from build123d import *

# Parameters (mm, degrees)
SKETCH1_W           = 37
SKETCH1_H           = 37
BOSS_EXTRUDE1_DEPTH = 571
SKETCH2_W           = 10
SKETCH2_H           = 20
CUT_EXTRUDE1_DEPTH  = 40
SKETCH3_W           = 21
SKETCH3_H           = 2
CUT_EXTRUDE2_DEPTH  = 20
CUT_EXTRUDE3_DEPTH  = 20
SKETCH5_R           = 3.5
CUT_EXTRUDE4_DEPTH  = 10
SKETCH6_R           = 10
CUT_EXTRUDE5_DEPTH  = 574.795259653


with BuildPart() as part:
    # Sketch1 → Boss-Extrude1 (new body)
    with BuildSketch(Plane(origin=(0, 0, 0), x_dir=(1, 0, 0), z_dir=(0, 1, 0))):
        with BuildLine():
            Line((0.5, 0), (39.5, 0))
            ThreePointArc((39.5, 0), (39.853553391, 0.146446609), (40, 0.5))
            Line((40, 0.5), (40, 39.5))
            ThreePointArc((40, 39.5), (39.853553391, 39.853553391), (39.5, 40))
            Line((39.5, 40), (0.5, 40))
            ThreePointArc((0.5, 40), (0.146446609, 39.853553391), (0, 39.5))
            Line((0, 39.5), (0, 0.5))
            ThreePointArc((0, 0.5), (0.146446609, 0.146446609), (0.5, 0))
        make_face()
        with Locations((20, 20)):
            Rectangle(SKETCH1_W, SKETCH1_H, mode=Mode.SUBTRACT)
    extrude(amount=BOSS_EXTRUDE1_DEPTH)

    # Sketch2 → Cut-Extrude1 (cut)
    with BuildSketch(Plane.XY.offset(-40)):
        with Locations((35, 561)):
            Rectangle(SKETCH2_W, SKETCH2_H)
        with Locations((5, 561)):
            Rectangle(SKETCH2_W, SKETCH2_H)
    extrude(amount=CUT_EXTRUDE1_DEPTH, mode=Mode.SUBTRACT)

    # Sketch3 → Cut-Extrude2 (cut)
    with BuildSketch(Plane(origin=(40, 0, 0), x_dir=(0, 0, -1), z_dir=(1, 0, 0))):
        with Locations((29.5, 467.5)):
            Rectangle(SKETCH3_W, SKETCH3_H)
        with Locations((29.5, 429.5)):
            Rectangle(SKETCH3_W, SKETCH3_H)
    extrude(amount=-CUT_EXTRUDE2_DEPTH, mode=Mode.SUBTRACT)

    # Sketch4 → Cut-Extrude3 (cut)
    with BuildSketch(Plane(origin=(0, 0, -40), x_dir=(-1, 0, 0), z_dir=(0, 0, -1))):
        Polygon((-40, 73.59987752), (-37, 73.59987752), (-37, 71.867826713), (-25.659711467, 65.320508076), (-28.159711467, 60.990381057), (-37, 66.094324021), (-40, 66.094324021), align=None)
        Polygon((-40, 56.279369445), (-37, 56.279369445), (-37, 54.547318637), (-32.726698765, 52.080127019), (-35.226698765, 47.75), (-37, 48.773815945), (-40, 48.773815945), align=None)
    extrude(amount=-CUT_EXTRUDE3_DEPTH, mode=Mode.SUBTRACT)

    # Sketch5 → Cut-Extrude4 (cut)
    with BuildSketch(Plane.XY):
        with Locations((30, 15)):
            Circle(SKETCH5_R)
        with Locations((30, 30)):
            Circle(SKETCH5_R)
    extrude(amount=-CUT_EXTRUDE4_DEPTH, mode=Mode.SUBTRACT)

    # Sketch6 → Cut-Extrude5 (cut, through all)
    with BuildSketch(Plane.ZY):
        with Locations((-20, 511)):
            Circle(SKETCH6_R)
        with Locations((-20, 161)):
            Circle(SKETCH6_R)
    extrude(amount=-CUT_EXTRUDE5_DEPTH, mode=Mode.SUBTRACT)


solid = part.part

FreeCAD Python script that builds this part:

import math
import FreeCAD as App
import Part
import Sketcher
Q = App.Units.Quantity

doc = App.newDocument("Part")
body = doc.addObject("PartDesign::Body", "Body")

# Sketch on XZ plane
sketch1 = body.newObject("Sketcher::SketchObject", "Sketch")
sketch1.AttachmentSupport = (doc.getObject("XZ_Plane"), [""])
sketch1.MapMode = "FlatFace"
sketch1.addGeometry([
    Part.LineSegment(App.Vector(0.5, 0, 0), App.Vector(39.5, 0, 0)),  # 0
    Part.ArcOfCircle(Part.Circle(App.Vector(39.5, -0.5, 0), App.Vector(0, 0, 1), 0.5), math.radians(0), math.radians(90)),  # 1
    Part.LineSegment(App.Vector(40, -0.5, 0), App.Vector(40, -39.5, 0)),  # 2
    Part.ArcOfCircle(Part.Circle(App.Vector(39.5, -39.5, 0), App.Vector(0, 0, 1), 0.5), math.radians(-90), math.radians(0)),  # 3
    Part.LineSegment(App.Vector(39.5, -40, 0), App.Vector(0.5, -40, 0)),  # 4
    Part.ArcOfCircle(Part.Circle(App.Vector(0.5, -39.5, 0), App.Vector(0, 0, 1), 0.5), math.radians(180), math.radians(270)),  # 5
    Part.LineSegment(App.Vector(0, -39.5, 0), App.Vector(0, -0.5, 0)),  # 6
    Part.ArcOfCircle(Part.Circle(App.Vector(0.5, -0.5, 0), App.Vector(0, 0, 1), 0.5), math.radians(90), math.radians(180)),  # 7
    Part.LineSegment(App.Vector(38.5, -1.5, 0), App.Vector(1.5, -1.5, 0)),  # 8
    Part.LineSegment(App.Vector(1.5, -1.5, 0), App.Vector(1.5, -38.5, 0)),  # 9
    Part.LineSegment(App.Vector(1.5, -38.5, 0), App.Vector(38.5, -38.5, 0)),  # 10
    Part.LineSegment(App.Vector(38.5, -38.5, 0), App.Vector(38.5, -1.5, 0)),  # 11
], False)
sketch1.addConstraint([
    Sketcher.Constraint("Tangent", 0, 2, 1, 2),
    Sketcher.Constraint("Tangent", 1, 1, 2, 1),
    Sketcher.Constraint("Tangent", 2, 2, 3, 2),
    Sketcher.Constraint("Tangent", 3, 1, 4, 1),
    Sketcher.Constraint("Tangent", 4, 2, 5, 2),
    Sketcher.Constraint("Tangent", 5, 1, 6, 1),
    Sketcher.Constraint("Tangent", 6, 2, 7, 2),
    Sketcher.Constraint("Tangent", 7, 1, 0, 1),
    Sketcher.Constraint("Coincident", 8, 2, 9, 1),
    Sketcher.Constraint("Coincident", 9, 2, 10, 1),
    Sketcher.Constraint("Coincident", 10, 2, 11, 1),
    Sketcher.Constraint("Coincident", 11, 2, 8, 1),
    Sketcher.Constraint("Horizontal", 0),
    Sketcher.Constraint("Vertical", 2),
    Sketcher.Constraint("Horizontal", 4),
    Sketcher.Constraint("Vertical", 6),
    Sketcher.Constraint("Horizontal", 8),
    Sketcher.Constraint("Vertical", 9),
    Sketcher.Constraint("Horizontal", 10),
    Sketcher.Constraint("Vertical", 11),
    Sketcher.Constraint("Equal", 1, 3),
    Sketcher.Constraint("Equal", 3, 5),
    Sketcher.Constraint("Equal", 5, 7),
    Sketcher.Constraint("PointOnObject", 0, 2, -1),
    Sketcher.Constraint("PointOnObject", 5, 1, -2),
    Sketcher.Constraint("Equal", 4, 2),
    Sketcher.Constraint("Equal", 10, 9),
    Sketcher.Constraint("Radius", 1, Q("0.5 mm")),
    Sketcher.Constraint("DistanceX", 0, 1, 0, 2, Q("39 mm")),
    Sketcher.Constraint("DistanceX", 8, 2, 8, 1, Q("37 mm")),
    Sketcher.Constraint("DistanceX", 7, 3, 8, 2, Q("1 mm")),
    Sketcher.Constraint("DistanceY", 8, 2, 7, 3, Q("1 mm")),
])
pad1 = body.newObject("PartDesign::Pad", "Pad")
pad1.Profile = sketch1
pad1.Length = 571
pad1.Reversed = True

# Sketch on XY plane
sketch2 = body.newObject("Sketcher::SketchObject", "Sketch001")
sketch2.AttachmentSupport = (doc.getObject("XY_Plane"), [""])
sketch2.MapMode = "FlatFace"
sketch2.AttachmentOffset = App.Placement(App.Vector(0, 0, -40), App.Rotation())
sketch2.addGeometry([
    Part.LineSegment(App.Vector(30, 571, 0), App.Vector(30, 551, 0)),  # 0
    Part.LineSegment(App.Vector(30, 551, 0), App.Vector(40, 551, 0)),  # 1
    Part.LineSegment(App.Vector(40, 551, 0), App.Vector(40, 571, 0)),  # 2
    Part.LineSegment(App.Vector(40, 571, 0), App.Vector(30, 571, 0)),  # 3
    Part.LineSegment(App.Vector(0, 571, 0), App.Vector(0, 551, 0)),  # 4
    Part.LineSegment(App.Vector(0, 551, 0), App.Vector(10, 551, 0)),  # 5
    Part.LineSegment(App.Vector(10, 551, 0), App.Vector(10, 571, 0)),  # 6
    Part.LineSegment(App.Vector(10, 571, 0), App.Vector(0, 571, 0)),  # 7
], False)
sketch2.addConstraint([
    Sketcher.Constraint("Coincident", 0, 2, 1, 1),
    Sketcher.Constraint("Coincident", 1, 2, 2, 1),
    Sketcher.Constraint("Coincident", 2, 2, 3, 1),
    Sketcher.Constraint("Coincident", 3, 2, 0, 1),
    Sketcher.Constraint("Coincident", 4, 2, 5, 1),
    Sketcher.Constraint("Coincident", 5, 2, 6, 1),
    Sketcher.Constraint("Coincident", 6, 2, 7, 1),
    Sketcher.Constraint("Coincident", 7, 2, 4, 1),
    Sketcher.Constraint("Vertical", 0),
    Sketcher.Constraint("Horizontal", 1),
    Sketcher.Constraint("Vertical", 2),
    Sketcher.Constraint("Horizontal", 3),
    Sketcher.Constraint("Vertical", 4),
    Sketcher.Constraint("Horizontal", 5),
    Sketcher.Constraint("Vertical", 6),
    Sketcher.Constraint("Horizontal", 7),
    Sketcher.Constraint("PointOnObject", 4, 2, -2),
    Sketcher.Constraint("Horizontal", 1, 2, 4, 2),
    Sketcher.Constraint("Horizontal", 3, 2, 6, 2),
    Sketcher.Constraint("Equal", 3, 5),
    Sketcher.Constraint("DistanceX", 1, 1, 1, 2, Q("10 mm")),
    Sketcher.Constraint("DistanceY", 0, 2, 0, 1, Q("20 mm")),
    Sketcher.Constraint("DistanceX", -1, 1, 0, 2, Q("30 mm")),
    Sketcher.Constraint("DistanceY", -1, 1, 0, 2, Q("551 mm")),
])
pocket1 = body.newObject("PartDesign::Pocket", "Pocket")
pocket1.Profile = sketch2
pocket1.Length = 40
pocket1.Reversed = True

# Sketch on YZ plane
sketch3 = body.newObject("Sketcher::SketchObject", "Sketch002")
sketch3.AttachmentSupport = (doc.getObject("YZ_Plane"), [""])
sketch3.MapMode = "FlatFace"
sketch3.AttachmentOffset = App.Placement(App.Vector(0, 0, 40), App.Rotation())
sketch3.addGeometry([
    Part.LineSegment(App.Vector(468.5, -19, 0), App.Vector(466.5, -19, 0)),  # 0
    Part.LineSegment(App.Vector(466.5, -19, 0), App.Vector(466.5, -40, 0)),  # 1
    Part.LineSegment(App.Vector(466.5, -40, 0), App.Vector(468.5, -40, 0)),  # 2
    Part.LineSegment(App.Vector(468.5, -40, 0), App.Vector(468.5, -19, 0)),  # 3
    Part.LineSegment(App.Vector(430.5, -19, 0), App.Vector(428.5, -19, 0)),  # 4
    Part.LineSegment(App.Vector(428.5, -19, 0), App.Vector(428.5, -40, 0)),  # 5
    Part.LineSegment(App.Vector(428.5, -40, 0), App.Vector(430.5, -40, 0)),  # 6
    Part.LineSegment(App.Vector(430.5, -40, 0), App.Vector(430.5, -19, 0)),  # 7
], False)
sketch3.addConstraint([
    Sketcher.Constraint("Coincident", 0, 2, 1, 1),
    Sketcher.Constraint("Coincident", 1, 2, 2, 1),
    Sketcher.Constraint("Coincident", 2, 2, 3, 1),
    Sketcher.Constraint("Coincident", 3, 2, 0, 1),
    Sketcher.Constraint("Coincident", 4, 2, 5, 1),
    Sketcher.Constraint("Coincident", 5, 2, 6, 1),
    Sketcher.Constraint("Coincident", 6, 2, 7, 1),
    Sketcher.Constraint("Coincident", 7, 2, 4, 1),
    Sketcher.Constraint("Horizontal", 0),
    Sketcher.Constraint("Vertical", 1),
    Sketcher.Constraint("Horizontal", 2),
    Sketcher.Constraint("Vertical", 3),
    Sketcher.Constraint("Horizontal", 4),
    Sketcher.Constraint("Vertical", 5),
    Sketcher.Constraint("Horizontal", 6),
    Sketcher.Constraint("Vertical", 7),
    Sketcher.Constraint("Horizontal", 3, 2, 4, 2),
    Sketcher.Constraint("Horizontal", 2, 2, 5, 2),
    Sketcher.Constraint("Equal", 2, 4),
    Sketcher.Constraint("DistanceX", 0, 2, 0, 1, Q("2 mm")),
    Sketcher.Constraint("DistanceY", 1, 2, 1, 1, Q("21 mm")),
    Sketcher.Constraint("DistanceY", 0, 2, -1, 1, Q("19 mm")),
    Sketcher.Constraint("DistanceX", 4, 2, 0, 2, Q("38 mm")),
    Sketcher.Constraint("DistanceX", -1, 1, 0, 2, Q("466.5 mm")),
])
pocket2 = body.newObject("PartDesign::Pocket", "Pocket001")
pocket2.Profile = sketch3
pocket2.Length = 20

# Sketch on XY plane
sketch4 = body.newObject("Sketcher::SketchObject", "Sketch003")
sketch4.AttachmentSupport = (doc.getObject("XY_Plane"), [""])
sketch4.MapMode = "FlatFace"
sketch4.AttachmentOffset = App.Placement(App.Vector(0, 0, -40), App.Rotation())
sketch4.addGeometry([
    Part.LineSegment(App.Vector(37, 73.6, 0), App.Vector(40, 73.6, 0)),  # 0
    Part.LineSegment(App.Vector(40, 73.6, 0), App.Vector(40, 66.1, 0)),  # 1
    Part.LineSegment(App.Vector(40, 66.1, 0), App.Vector(37, 66.1, 0)),  # 2
    Part.LineSegment(App.Vector(37, 66.1, 0), App.Vector(28.2, 61, 0)),  # 3
    Part.LineSegment(App.Vector(28.2, 61, 0), App.Vector(25.7, 65.3, 0)),  # 4
    Part.LineSegment(App.Vector(25.7, 65.3, 0), App.Vector(37, 71.9, 0)),  # 5
    Part.LineSegment(App.Vector(37, 71.9, 0), App.Vector(37, 73.6, 0)),  # 6
    Part.LineSegment(App.Vector(37, 56.3, 0), App.Vector(40, 56.3, 0)),  # 7
    Part.LineSegment(App.Vector(40, 56.3, 0), App.Vector(40, 48.8, 0)),  # 8
    Part.LineSegment(App.Vector(40, 48.8, 0), App.Vector(37, 48.8, 0)),  # 9
    Part.LineSegment(App.Vector(37, 48.8, 0), App.Vector(35.2, 47.8, 0)),  # 10
    Part.LineSegment(App.Vector(35.2, 47.8, 0), App.Vector(32.7, 52.1, 0)),  # 11
    Part.LineSegment(App.Vector(32.7, 52.1, 0), App.Vector(37, 54.5, 0)),  # 12
    Part.LineSegment(App.Vector(37, 54.5, 0), App.Vector(37, 56.3, 0)),  # 13
], False)
sketch4.addConstraint([
    Sketcher.Constraint("Coincident", 0, 2, 1, 1),
    Sketcher.Constraint("Coincident", 1, 2, 2, 1),
    Sketcher.Constraint("Coincident", 2, 2, 3, 1),
    Sketcher.Constraint("Coincident", 3, 2, 4, 1),
    Sketcher.Constraint("Coincident", 4, 2, 5, 1),
    Sketcher.Constraint("Coincident", 5, 2, 6, 1),
    Sketcher.Constraint("Coincident", 6, 2, 0, 1),
    Sketcher.Constraint("Coincident", 7, 2, 8, 1),
    Sketcher.Constraint("Coincident", 8, 2, 9, 1),
    Sketcher.Constraint("Coincident", 9, 2, 10, 1),
    Sketcher.Constraint("Coincident", 10, 2, 11, 1),
    Sketcher.Constraint("Coincident", 11, 2, 12, 1),
    Sketcher.Constraint("Coincident", 12, 2, 13, 1),
    Sketcher.Constraint("Coincident", 13, 2, 7, 1),
    Sketcher.Constraint("Horizontal", 0),
    Sketcher.Constraint("Vertical", 1),
    Sketcher.Constraint("Horizontal", 2),
    Sketcher.Constraint("Vertical", 6),
    Sketcher.Constraint("Horizontal", 7),
    Sketcher.Constraint("Vertical", 8),
    Sketcher.Constraint("Horizontal", 9),
    Sketcher.Constraint("Vertical", 13),
    Sketcher.Constraint("Perpendicular", 3, 4),
    Sketcher.Constraint("Perpendicular", 4, 5),
    Sketcher.Constraint("Parallel", 5, 10),
    Sketcher.Constraint("Perpendicular", 10, 11),
    Sketcher.Constraint("Perpendicular", 11, 12),
    Sketcher.Constraint("Vertical", 2, 2, 5, 2),
    Sketcher.Constraint("Vertical", 1, 2, 7, 2),
    Sketcher.Constraint("Vertical", 6, 2, 9, 2),
    Sketcher.Constraint("Vertical", 9, 2, 12, 2),
    Sketcher.Constraint("Equal", 1, 8),
    Sketcher.Constraint("Equal", 6, 13),
    Sketcher.Constraint("DistanceX", 0, 1, 0, 2, Q("3 mm")),
    Sketcher.Constraint("Angle", 3, Q("-150 deg")),
    Sketcher.Constraint("Distance", 4, Q("5 mm")),
    Sketcher.Constraint("DistanceX", -1, 1, 0, 2, Q("40 mm")),
    Sketcher.Constraint("DistanceY", -1, 1, 10, 2, Q("47.75 mm")),
    Sketcher.Constraint("DistanceY", 6, 1, 6, 2, Q("1.732051 mm")),
    Sketcher.Constraint("DistanceX", -1, 1, 10, 2, Q("35.226699 mm")),
    Sketcher.Constraint("DistanceX", -1, 1, 3, 2, Q("28.159711 mm")),
    Sketcher.Constraint("DistanceY", -1, 1, 3, 2, Q("60.990381 mm")),
])
pocket3 = body.newObject("PartDesign::Pocket", "Pocket002")
pocket3.Profile = sketch4
pocket3.Length = 20
pocket3.Reversed = True

# Sketch on XY plane
sketch5 = body.newObject("Sketcher::SketchObject", "Sketch004")
sketch5.AttachmentSupport = (doc.getObject("XY_Plane"), [""])
sketch5.MapMode = "FlatFace"
sketch5.addGeometry([
    Part.Circle(App.Vector(30, 15, 0), App.Vector(0, 0, 1), 3.5),
    Part.Circle(App.Vector(30, 30, 0), App.Vector(0, 0, 1), 3.5),
], False)
sketch5.addConstraint([
    Sketcher.Constraint("Equal", 0, 1),
    Sketcher.Constraint("Vertical", 0, 3, 1, 3),
    Sketcher.Constraint("Diameter", 0, Q("7 mm")),
    Sketcher.Constraint("DistanceX", -1, 1, 0, 3, Q("30 mm")),
    Sketcher.Constraint("DistanceY", -1, 1, 0, 3, Q("15 mm")),
    Sketcher.Constraint("DistanceY", -1, 1, 1, 3, Q("30 mm")),
])
pocket4 = body.newObject("PartDesign::Pocket", "Pocket003")
pocket4.Profile = sketch5
pocket4.Length = 10

# Sketch on YZ plane
sketch6 = body.newObject("Sketcher::SketchObject", "Sketch005")
sketch6.AttachmentSupport = (doc.getObject("YZ_Plane"), [""])
sketch6.MapMode = "FlatFace"
sketch6.addGeometry([
    Part.Circle(App.Vector(511, -20, 0), App.Vector(0, 0, 1), 10),
    Part.Circle(App.Vector(161, -20, 0), App.Vector(0, 0, 1), 10),
], False)
sketch6.addConstraint([
    Sketcher.Constraint("Equal", 0, 1),
    Sketcher.Constraint("Horizontal", 0, 3, 1, 3),
    Sketcher.Constraint("Diameter", 0, Q("20 mm")),
    Sketcher.Constraint("DistanceX", -1, 1, 0, 3, Q("511 mm")),
    Sketcher.Constraint("DistanceY", 0, 3, -1, 1, Q("20 mm")),
    Sketcher.Constraint("DistanceX", -1, 1, 1, 3, Q("161 mm")),
])
pocket5 = body.newObject("PartDesign::Pocket", "Pocket004")
pocket5.Profile = sketch6
pocket5.Type = "ThroughAll"
pocket5.Reversed = True

doc.recompute()
